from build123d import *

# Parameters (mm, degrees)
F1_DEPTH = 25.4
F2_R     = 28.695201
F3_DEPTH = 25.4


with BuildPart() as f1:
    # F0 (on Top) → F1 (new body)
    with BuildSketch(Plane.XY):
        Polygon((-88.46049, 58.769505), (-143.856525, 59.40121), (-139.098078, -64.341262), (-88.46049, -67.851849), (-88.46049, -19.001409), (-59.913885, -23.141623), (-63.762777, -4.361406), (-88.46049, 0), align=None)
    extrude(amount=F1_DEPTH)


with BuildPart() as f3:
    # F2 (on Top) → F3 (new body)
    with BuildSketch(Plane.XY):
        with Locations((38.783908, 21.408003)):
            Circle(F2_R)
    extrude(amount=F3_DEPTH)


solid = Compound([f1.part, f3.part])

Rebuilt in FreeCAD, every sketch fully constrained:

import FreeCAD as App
import Part
import Sketcher

V = App.Vector
Q = App.Units.Quantity

doc = App.newDocument("Part")
body = doc.addObject("PartDesign::Body", "Body")

# Sketch on XY plane
sketch1 = body.newObject("Sketcher::SketchObject", "Sketch")
sketch1.AttachmentSupport = (doc.getObject("XY_Plane"), [""])
sketch1.MapMode = "FlatFace"
sketch1.addGeometry([
    Part.LineSegment(V(-88.46049, 58.769505, 0), V(-143.856525, 59.40121, 0)),  # 0
    Part.LineSegment(V(-143.856525, 59.40121, 0), V(-139.098078, -64.341262, 0)),  # 1
    Part.LineSegment(V(-139.098078, -64.341262, 0), V(-88.46049, -67.851849, 0)),  # 2
    Part.LineSegment(V(-88.46049, -67.851849, 0), V(-88.46049, -19.001409, 0)),  # 3
    Part.LineSegment(V(-88.46049, -19.001409, 0), V(-59.913885, -23.141623, 0)),  # 4
    Part.LineSegment(V(-59.913885, -23.141623, 0), V(-63.762777, -4.361406, 0)),  # 5
    Part.LineSegment(V(-63.762777, -4.361406, 0), V(-88.46049, 0, 0)),  # 6
    Part.LineSegment(V(-88.46049, 0, 0), V(-88.46049, 58.769505, 0)),  # 7
], False)
sketch1.addConstraint([
    Sketcher.Constraint("Coincident", 0, 2, 1, 1),
    Sketcher.Constraint("Coincident", 1, 2, 2, 1),
    Sketcher.Constraint("Coincident", 2, 2, 3, 1),
    Sketcher.Constraint("Coincident", 3, 2, 4, 1),
    Sketcher.Constraint("Coincident", 4, 2, 5, 1),
    Sketcher.Constraint("Coincident", 5, 2, 6, 1),
    Sketcher.Constraint("Coincident", 6, 2, 7, 1),
    Sketcher.Constraint("Coincident", 7, 2, 0, 1),
    Sketcher.Constraint("Vertical", 3),
    Sketcher.Constraint("Vertical", 7),
    Sketcher.Constraint("PointOnObject", 6, 2, -1),
    Sketcher.Constraint("Vertical", 3, 2, 6, 2),
    Sketcher.Constraint("DistanceY", 3, 1, 3, 2, 48.85044),
    Sketcher.Constraint("DistanceX", 1, 2, 5, 2, 75.335301),
    Sketcher.Constraint("Distance", 1, 123.83393),
    Sketcher.Constraint("Distance", 6, 25.07985),
    Sketcher.Constraint("DistanceY", 7, 1, 7, 2, 58.769505),
    Sketcher.Constraint("DistanceY", -1, 1, 0, 2, 59.40121),
    Sketcher.Constraint("DistanceY", 1, 2, -1, 1, 64.341262),
    Sketcher.Constraint("DistanceX", 2, 2, -1, 1, 88.46049),
    Sketcher.Constraint("DistanceY", 2, 2, -1, 1, 67.851849),
    Sketcher.Constraint("DistanceY", 1, 2, 4, 2, 41.199639),
    Sketcher.Constraint("DistanceX", 0, 2, 4, 2, 83.94264),
    Sketcher.Constraint("DistanceY", 5, 2, 7, 2, 63.130911),
])
pad1 = body.newObject("PartDesign::Pad", "Pad")
pad1.Profile = sketch1
pad1.Length = Q("1 in")
body2 = doc.addObject("PartDesign::Body", "Body001")

# Sketch on XY plane
sketch2 = body2.newObject("Sketcher::SketchObject", "Sketch001")
sketch2.AttachmentSupport = (doc.getObject("XY_Plane001"), [""])
sketch2.MapMode = "FlatFace"
sketch2.addGeometry(Part.Circle(V(38.783908, 21.408003, 0), V(0, 0, 1), 28.695201), False)
sketch2.addConstraint([
    Sketcher.Constraint("Diameter", 0, 57.390402),
    Sketcher.Constraint("DistanceX", -1, 1, 0, 3, 38.783908),
    Sketcher.Constraint("DistanceY", -1, 1, 0, 3, 21.408003),
])
pad2 = body2.newObject("PartDesign::Pad", "Pad001")
pad2.Profile = sketch2
pad2.Length = Q("1 in")

doc.recompute()
